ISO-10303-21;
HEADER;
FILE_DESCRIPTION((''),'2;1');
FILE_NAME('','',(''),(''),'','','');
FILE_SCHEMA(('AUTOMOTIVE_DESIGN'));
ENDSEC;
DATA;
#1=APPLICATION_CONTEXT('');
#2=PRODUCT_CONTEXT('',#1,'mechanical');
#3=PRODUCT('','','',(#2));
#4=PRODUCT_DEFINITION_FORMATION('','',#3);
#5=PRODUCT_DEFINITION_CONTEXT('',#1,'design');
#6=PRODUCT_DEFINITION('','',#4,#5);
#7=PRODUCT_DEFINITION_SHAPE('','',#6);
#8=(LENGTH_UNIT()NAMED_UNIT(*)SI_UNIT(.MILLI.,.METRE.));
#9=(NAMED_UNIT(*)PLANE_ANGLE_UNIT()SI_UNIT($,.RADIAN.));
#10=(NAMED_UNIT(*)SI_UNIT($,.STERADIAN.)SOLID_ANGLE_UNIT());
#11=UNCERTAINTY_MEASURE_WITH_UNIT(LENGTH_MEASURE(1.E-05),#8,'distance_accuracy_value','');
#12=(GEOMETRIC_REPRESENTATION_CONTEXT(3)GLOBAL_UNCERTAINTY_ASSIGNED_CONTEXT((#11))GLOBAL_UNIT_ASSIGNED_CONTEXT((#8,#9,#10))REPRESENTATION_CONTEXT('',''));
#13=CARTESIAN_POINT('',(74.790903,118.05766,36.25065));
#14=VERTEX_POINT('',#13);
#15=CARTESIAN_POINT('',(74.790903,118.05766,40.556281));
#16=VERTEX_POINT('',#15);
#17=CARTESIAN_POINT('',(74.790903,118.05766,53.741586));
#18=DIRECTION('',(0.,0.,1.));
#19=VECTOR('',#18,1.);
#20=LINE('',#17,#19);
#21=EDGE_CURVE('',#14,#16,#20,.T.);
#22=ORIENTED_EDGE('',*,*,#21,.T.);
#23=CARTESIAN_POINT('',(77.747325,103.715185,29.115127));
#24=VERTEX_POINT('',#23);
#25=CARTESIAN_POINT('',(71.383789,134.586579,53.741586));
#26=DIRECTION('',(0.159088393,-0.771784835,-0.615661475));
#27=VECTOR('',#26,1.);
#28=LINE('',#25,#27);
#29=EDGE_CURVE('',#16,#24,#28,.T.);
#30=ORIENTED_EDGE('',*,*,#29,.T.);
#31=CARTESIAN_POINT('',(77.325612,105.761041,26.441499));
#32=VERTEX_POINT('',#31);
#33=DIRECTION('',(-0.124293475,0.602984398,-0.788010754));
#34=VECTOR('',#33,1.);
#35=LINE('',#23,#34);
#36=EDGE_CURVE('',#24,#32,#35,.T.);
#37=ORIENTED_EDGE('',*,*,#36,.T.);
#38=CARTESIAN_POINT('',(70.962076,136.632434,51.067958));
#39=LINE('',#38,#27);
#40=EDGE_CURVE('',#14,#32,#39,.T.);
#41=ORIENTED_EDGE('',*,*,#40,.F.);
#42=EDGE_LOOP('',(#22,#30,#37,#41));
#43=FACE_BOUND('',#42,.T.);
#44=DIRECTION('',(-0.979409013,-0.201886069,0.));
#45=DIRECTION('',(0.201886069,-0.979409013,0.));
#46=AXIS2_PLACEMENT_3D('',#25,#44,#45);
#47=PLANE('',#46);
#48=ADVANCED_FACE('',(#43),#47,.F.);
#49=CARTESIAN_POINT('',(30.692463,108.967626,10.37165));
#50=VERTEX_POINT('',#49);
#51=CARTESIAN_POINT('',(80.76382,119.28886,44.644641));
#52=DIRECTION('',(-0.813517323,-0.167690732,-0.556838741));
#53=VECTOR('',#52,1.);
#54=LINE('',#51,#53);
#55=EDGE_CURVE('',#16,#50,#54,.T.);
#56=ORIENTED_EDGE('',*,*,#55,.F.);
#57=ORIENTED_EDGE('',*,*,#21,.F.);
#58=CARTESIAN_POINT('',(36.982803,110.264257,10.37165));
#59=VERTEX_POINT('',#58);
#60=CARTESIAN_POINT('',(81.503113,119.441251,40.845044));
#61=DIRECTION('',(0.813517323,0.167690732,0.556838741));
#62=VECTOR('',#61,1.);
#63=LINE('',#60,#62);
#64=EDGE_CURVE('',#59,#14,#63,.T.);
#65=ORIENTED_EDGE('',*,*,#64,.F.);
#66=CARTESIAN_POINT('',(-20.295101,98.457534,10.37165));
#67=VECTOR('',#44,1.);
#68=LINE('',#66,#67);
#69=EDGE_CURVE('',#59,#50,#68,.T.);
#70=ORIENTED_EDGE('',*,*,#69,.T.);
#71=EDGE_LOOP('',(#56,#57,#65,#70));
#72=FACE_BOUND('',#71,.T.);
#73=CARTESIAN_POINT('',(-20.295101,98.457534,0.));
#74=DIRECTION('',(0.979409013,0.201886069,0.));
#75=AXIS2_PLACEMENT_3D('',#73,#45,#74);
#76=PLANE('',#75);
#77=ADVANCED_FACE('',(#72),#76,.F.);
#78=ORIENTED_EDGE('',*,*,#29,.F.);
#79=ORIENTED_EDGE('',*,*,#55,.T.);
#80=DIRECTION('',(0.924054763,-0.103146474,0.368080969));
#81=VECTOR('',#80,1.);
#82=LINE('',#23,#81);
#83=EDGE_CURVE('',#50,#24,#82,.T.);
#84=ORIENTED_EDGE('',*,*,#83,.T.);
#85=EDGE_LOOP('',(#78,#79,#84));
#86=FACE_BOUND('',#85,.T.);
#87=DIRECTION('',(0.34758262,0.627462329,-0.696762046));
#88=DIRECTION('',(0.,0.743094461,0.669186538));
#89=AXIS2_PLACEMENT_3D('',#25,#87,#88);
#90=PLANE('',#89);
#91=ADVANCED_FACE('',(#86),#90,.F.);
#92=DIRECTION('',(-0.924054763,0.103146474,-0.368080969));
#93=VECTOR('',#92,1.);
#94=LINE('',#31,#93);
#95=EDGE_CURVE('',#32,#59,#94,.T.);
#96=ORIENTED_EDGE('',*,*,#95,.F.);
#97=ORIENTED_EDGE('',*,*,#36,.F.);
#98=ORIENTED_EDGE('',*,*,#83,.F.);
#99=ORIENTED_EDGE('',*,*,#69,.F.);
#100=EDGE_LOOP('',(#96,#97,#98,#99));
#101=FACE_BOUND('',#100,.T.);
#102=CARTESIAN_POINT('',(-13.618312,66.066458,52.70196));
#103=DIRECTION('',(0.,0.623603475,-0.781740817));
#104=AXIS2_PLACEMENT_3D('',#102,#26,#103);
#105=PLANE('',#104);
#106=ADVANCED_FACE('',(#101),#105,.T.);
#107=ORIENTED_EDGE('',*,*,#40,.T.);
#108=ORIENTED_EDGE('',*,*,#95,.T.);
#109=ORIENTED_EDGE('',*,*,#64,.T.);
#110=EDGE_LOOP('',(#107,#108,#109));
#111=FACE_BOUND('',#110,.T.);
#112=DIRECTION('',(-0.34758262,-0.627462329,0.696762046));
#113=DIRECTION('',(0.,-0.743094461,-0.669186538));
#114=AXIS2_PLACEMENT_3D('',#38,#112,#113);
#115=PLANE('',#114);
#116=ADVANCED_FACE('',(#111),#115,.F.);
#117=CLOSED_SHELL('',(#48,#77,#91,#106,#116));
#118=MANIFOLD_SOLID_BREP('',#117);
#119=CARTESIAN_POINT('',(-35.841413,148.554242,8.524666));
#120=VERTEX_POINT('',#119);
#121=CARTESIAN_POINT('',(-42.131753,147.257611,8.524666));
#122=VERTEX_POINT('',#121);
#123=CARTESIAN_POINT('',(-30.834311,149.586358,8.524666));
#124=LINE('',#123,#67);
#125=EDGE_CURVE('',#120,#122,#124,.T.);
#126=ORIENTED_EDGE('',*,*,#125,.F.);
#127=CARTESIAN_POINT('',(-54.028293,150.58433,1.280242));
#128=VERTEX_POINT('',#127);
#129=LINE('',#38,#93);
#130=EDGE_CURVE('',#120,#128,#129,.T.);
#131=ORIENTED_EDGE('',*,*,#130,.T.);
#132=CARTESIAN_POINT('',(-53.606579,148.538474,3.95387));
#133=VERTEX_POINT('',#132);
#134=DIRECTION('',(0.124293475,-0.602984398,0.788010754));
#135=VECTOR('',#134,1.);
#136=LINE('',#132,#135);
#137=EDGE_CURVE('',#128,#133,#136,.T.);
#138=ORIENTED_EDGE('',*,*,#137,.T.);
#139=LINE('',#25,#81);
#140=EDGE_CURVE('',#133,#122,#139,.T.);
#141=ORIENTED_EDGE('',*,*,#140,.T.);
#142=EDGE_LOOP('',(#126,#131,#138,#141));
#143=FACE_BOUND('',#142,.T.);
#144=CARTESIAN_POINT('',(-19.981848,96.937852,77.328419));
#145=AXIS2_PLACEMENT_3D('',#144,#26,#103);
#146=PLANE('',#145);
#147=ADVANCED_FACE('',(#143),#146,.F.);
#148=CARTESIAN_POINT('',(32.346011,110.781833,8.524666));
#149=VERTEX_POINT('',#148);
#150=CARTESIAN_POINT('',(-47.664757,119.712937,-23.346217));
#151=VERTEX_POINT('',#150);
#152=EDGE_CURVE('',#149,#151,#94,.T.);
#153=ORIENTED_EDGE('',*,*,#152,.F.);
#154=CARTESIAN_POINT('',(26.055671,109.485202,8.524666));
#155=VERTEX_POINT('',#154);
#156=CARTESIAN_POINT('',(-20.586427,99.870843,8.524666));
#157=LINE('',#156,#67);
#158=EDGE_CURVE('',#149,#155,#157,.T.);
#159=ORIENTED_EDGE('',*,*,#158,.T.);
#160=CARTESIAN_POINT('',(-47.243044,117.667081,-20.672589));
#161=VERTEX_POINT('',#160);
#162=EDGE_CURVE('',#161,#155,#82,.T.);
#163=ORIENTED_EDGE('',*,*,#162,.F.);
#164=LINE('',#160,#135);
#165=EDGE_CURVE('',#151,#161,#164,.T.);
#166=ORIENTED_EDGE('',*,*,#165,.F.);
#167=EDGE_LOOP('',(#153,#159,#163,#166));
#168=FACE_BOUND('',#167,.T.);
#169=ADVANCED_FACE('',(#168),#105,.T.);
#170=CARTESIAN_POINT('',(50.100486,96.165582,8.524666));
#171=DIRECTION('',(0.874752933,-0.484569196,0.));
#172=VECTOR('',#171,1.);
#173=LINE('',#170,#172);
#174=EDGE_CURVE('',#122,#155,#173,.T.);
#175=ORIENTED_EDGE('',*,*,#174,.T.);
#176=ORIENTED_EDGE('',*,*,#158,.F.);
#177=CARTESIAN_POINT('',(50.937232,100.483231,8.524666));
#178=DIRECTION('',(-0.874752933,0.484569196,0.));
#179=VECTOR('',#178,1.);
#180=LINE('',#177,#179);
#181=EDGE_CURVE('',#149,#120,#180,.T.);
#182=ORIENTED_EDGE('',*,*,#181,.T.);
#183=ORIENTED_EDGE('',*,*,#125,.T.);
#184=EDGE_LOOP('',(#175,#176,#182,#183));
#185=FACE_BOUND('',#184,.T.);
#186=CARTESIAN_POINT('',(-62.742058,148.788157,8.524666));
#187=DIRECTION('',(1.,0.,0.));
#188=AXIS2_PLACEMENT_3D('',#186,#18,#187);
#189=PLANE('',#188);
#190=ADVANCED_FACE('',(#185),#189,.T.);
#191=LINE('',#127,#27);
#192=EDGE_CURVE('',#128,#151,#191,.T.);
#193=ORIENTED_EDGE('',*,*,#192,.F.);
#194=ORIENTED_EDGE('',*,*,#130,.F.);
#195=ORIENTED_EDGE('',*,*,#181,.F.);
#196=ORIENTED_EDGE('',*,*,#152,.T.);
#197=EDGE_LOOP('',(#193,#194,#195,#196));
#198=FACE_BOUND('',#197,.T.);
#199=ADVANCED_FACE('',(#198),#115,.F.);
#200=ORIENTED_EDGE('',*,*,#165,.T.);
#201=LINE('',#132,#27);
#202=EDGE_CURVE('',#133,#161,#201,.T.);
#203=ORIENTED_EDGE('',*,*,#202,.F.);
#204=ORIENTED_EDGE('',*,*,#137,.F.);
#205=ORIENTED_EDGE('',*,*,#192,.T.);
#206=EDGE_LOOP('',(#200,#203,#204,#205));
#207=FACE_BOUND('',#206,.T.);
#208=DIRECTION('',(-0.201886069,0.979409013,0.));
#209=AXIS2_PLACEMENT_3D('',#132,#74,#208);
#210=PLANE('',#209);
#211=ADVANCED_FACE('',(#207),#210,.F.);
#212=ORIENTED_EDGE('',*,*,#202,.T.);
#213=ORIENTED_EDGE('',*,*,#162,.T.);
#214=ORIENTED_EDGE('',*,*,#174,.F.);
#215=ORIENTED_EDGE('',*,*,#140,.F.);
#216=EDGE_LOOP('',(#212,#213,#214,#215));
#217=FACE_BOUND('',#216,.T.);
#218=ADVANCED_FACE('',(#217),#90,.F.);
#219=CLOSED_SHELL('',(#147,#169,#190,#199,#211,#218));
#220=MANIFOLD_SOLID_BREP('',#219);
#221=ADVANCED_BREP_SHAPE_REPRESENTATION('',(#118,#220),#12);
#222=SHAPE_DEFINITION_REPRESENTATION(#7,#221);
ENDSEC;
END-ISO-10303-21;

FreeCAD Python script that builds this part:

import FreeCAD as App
import Part
import Sketcher
Q = App.Units.Quantity

doc = App.newDocument("Part")
body = doc.addObject("PartDesign::Body", "Body")
body.AllowCompound = True

# Sketch on an angled plane
sketch1 = body.newObject("Sketcher::SketchObject", "Sketch")
sketch1.Placement = App.Placement(App.Vector(-13.618312, 66.066458, 52.70196), App.Rotation(App.Vector(0.984335136, 0.075994886, 0.159088393), App.Vector(0.075994886, 0.631326339, -0.771784835), App.Vector(-0.159088393, 0.771784835, 0.615661475), "ZXY"))
sketch1.addGeometry([
    Part.LineSegment(App.Vector(89, 48.9, 0), App.Vector(88.4, 52.2, 0)),
    Part.LineSegment(App.Vector(88.4, 52.2, 0), App.Vector(-41.5, 90, 0)),
    Part.LineSegment(App.Vector(-41.5, 90, 0), App.Vector(-40.8, 86.7, 0)),
    Part.LineSegment(App.Vector(-40.8, 86.7, 0), App.Vector(89, 48.9, 0)),
], False)
sketch1.addConstraint([
    Sketcher.Constraint("Coincident", 0, 2, 1, 1),
    Sketcher.Constraint("Coincident", 1, 2, 2, 1),
    Sketcher.Constraint("Coincident", 2, 2, 3, 1),
    Sketcher.Constraint("Coincident", 3, 2, 0, 1),
    Sketcher.Constraint("Parallel", 0, 2),
    Sketcher.Constraint("Parallel", 1, 3),
    Sketcher.Constraint("DistanceX", -1, 1, 0, 2, Q("88.35815 mm")),
    Sketcher.Constraint("DistanceY", -1, 1, 1, 2, Q("89.973908 mm")),
    Sketcher.Constraint("DistanceX", 2, 2, -1, 1, Q("40.84966 mm")),
    Sketcher.Constraint("DistanceY", -1, 1, 2, 2, Q("86.650888 mm")),
    Sketcher.Constraint("Distance", 0, Q("3.392883 mm")),
    Sketcher.Constraint("Distance", 1, Q("135.262945 mm")),
])
pad1 = body.newObject("PartDesign::Pad", "Pad")
pad1.Profile = sketch1
pad1.Length = 40

# Sketch on an angled plane
sketch2 = body.newObject("Sketcher::SketchObject", "Sketch001")
sketch2.Placement = App.Placement(App.Vector(-20.295101, 98.457534, 0), App.Rotation(App.Vector(0.968832963, 0.199706022, 0.146561234), App.Vector(0.143543394, 0.029588671, -0.9892016), App.Vector(-0.201886069, 0.979409013, 0), "ZXY"))
sketch2.addGeometry([
    Part.LineSegment(App.Vector(-12, -132, 0), App.Vector(235, -95, 0)),
    Part.LineSegment(App.Vector(235, -95, 0), App.Vector(217, 24, 0)),
    Part.LineSegment(App.Vector(217, 24, 0), App.Vector(-30, -13, 0)),
    Part.LineSegment(App.Vector(-30, -13, 0), App.Vector(-12, -132, 0)),
], False)
sketch2.addConstraint([
    Sketcher.Constraint("Coincident", 0, 2, 1, 1),
    Sketcher.Constraint("Coincident", 1, 2, 2, 1),
    Sketcher.Constraint("Coincident", 2, 2, 3, 1),
    Sketcher.Constraint("Coincident", 3, 2, 0, 1),
    Sketcher.Constraint("Perpendicular", 0, 1),
    Sketcher.Constraint("Perpendicular", 1, 2),
    Sketcher.Constraint("Perpendicular", 2, 3),
    Sketcher.Constraint("Distance", 1, Q("120 mm")),
    Sketcher.Constraint("Distance", 0, Q("249.6 mm")),
    Sketcher.Constraint("DistanceX", -1, 1, 0, 2, Q("234.66877 mm")),
    Sketcher.Constraint("DistanceX", 3, 2, -1, 1, Q("12.235949 mm")),
    Sketcher.Constraint("DistanceY", 3, 2, -1, 1, Q("131.740569 mm")),
])
pocket1 = body.newObject("PartDesign::Pocket", "Pocket")
pocket1.Profile = sketch2
pocket1.Type = "ThroughAll"
pocket1.Reversed = True

doc.recompute()
